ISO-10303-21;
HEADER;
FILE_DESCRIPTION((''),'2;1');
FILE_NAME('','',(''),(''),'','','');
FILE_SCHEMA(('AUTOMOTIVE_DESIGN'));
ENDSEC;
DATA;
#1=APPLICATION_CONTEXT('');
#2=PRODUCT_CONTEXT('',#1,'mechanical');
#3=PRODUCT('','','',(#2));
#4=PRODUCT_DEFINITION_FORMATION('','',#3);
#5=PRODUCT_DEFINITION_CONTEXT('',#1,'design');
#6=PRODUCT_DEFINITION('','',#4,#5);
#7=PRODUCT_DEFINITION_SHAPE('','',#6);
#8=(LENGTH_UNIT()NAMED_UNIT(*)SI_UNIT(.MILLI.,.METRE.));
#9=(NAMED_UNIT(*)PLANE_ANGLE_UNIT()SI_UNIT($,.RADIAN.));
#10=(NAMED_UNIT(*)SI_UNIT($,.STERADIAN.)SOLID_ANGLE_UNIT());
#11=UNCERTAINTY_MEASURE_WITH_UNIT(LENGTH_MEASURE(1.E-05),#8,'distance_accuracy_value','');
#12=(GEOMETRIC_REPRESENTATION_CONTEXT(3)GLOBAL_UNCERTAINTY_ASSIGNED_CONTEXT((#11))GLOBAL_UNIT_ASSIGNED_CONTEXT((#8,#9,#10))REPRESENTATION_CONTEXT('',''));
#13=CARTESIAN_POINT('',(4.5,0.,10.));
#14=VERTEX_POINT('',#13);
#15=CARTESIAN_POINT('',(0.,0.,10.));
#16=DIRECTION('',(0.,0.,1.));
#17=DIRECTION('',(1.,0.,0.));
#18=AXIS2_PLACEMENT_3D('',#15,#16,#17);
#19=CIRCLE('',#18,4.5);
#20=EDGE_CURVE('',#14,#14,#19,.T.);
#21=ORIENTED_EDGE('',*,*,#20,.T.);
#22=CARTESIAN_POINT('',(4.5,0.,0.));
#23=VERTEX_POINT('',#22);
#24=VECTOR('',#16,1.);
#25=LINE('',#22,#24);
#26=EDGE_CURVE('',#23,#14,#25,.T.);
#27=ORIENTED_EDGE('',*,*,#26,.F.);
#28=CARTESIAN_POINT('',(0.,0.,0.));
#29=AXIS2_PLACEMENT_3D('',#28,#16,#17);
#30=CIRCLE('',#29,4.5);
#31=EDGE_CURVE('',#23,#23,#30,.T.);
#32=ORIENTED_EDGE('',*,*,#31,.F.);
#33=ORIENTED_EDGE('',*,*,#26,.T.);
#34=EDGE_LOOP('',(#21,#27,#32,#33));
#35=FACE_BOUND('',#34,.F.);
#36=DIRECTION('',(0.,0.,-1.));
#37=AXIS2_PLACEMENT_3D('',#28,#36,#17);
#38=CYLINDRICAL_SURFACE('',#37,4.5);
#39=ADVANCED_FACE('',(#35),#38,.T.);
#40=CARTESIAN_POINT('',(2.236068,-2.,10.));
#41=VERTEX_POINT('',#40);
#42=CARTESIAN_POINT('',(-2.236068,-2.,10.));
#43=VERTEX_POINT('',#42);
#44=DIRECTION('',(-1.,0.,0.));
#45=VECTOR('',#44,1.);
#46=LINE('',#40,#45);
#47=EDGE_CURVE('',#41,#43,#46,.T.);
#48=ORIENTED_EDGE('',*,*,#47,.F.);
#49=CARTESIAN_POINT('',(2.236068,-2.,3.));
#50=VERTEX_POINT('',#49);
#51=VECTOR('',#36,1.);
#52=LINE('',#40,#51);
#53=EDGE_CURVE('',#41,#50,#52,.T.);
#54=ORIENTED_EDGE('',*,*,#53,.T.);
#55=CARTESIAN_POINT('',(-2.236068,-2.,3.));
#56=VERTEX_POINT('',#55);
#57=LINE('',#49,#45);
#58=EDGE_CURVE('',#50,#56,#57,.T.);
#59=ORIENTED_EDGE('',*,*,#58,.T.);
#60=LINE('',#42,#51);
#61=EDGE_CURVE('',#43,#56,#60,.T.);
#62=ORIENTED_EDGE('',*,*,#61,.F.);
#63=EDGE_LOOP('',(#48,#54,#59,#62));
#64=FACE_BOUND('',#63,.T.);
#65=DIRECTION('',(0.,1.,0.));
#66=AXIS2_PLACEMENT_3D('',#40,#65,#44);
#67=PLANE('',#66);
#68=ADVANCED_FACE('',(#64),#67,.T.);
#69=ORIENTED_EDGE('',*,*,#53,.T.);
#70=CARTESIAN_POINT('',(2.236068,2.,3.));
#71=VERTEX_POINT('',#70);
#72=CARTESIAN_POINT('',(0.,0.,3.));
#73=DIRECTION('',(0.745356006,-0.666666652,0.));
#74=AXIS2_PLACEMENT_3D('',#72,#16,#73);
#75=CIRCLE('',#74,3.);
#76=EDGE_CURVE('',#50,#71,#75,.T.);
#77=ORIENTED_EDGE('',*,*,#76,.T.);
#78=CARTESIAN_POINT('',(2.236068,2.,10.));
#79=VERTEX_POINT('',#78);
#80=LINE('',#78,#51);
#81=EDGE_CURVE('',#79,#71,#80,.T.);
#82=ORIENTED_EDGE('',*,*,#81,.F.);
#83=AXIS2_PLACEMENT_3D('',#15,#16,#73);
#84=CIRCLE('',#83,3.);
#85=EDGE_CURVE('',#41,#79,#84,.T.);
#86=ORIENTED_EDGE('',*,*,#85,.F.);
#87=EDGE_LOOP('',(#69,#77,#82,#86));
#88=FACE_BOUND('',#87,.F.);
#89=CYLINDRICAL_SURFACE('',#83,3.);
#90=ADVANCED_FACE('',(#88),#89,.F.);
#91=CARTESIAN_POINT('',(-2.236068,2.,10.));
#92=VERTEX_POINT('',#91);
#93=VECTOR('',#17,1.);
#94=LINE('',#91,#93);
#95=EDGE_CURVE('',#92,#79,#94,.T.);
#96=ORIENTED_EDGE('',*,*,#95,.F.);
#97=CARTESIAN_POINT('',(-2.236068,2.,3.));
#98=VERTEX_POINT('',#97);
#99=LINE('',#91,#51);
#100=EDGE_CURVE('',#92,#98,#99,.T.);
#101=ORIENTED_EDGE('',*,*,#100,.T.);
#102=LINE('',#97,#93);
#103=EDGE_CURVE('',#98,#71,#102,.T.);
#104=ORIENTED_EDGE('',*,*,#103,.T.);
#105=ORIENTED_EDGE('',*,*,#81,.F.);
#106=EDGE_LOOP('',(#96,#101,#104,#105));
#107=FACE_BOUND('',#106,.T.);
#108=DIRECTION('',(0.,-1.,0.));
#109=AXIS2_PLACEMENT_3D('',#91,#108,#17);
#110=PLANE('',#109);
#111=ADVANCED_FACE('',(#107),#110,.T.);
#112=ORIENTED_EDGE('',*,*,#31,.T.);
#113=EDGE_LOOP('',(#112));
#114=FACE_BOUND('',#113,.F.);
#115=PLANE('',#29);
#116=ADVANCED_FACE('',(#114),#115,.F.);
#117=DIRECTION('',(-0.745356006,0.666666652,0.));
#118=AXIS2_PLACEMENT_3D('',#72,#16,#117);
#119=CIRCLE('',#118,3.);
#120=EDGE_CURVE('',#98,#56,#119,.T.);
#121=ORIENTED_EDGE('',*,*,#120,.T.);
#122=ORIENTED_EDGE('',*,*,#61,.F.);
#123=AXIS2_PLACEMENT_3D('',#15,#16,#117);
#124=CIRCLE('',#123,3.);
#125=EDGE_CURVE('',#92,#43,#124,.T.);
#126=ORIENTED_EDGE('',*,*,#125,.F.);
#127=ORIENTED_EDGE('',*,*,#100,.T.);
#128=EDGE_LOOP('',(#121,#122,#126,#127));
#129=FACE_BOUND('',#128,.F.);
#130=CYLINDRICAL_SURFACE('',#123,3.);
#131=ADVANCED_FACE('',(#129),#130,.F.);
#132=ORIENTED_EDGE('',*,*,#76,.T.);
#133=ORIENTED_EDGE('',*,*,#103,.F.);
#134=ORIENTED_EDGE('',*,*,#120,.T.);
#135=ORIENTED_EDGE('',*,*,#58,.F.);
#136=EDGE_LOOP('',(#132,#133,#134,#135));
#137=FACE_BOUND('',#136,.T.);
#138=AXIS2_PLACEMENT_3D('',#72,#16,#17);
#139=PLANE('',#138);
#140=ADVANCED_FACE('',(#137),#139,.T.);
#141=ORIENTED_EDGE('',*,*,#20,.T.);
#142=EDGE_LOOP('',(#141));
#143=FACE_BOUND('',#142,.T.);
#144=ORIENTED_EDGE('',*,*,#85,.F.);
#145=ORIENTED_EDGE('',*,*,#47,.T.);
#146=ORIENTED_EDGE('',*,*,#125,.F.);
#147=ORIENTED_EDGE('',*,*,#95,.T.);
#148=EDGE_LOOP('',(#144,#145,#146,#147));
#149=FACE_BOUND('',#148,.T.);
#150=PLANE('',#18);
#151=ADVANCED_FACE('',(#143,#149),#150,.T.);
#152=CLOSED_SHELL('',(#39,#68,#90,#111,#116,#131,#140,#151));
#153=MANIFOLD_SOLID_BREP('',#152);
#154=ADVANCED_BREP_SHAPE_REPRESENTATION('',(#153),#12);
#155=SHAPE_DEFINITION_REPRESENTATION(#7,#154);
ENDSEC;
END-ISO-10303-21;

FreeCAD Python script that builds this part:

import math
import FreeCAD as App
import Part
import Sketcher
Q = App.Units.Quantity

doc = App.newDocument("Part")
body = doc.addObject("PartDesign::Body", "Body")

# Sketch on XY plane
sketch1 = doc.addObject("Sketcher::SketchObject", "Sketch")
body.addObject(sketch1)
sketch1.AttachmentSupport = (doc.XY_Plane, [""])
sketch1.MapMode = "FlatFace"
sketch1.AttachmentOffset = App.Placement(App.Vector(0, 0, 10), App.Rotation())
sketch1.addGeometry(Part.ArcOfCircle(Part.Circle(App.Vector(0, 0, 0), App.Vector(0, 0, 1), 3), math.radians(-42), math.radians(42)), False)
sketch1.addGeometry(Part.LineSegment(App.Vector(2.2, 2, 0), App.Vector(-2.2, 2, 0)), False)
sketch1.addGeometry(Part.ArcOfCircle(Part.Circle(App.Vector(0, 0, 0), App.Vector(0, 0, 1), 3), math.radians(138), math.radians(222)), False)
sketch1.addGeometry(Part.LineSegment(App.Vector(-2.2, -2, 0), App.Vector(2.2, -2, 0)), False)
sketch1.addConstraint(Sketcher.Constraint("Coincident", 0, 2, 1, 1))
sketch1.addConstraint(Sketcher.Constraint("Coincident", 1, 2, 2, 1))
sketch1.addConstraint(Sketcher.Constraint("Coincident", 2, 2, 3, 1))
sketch1.addConstraint(Sketcher.Constraint("Coincident", 3, 2, 0, 1))
sketch1.addConstraint(Sketcher.Constraint("Horizontal", 1))
sketch1.addConstraint(Sketcher.Constraint("Horizontal", 3))
sketch1.addConstraint(Sketcher.Constraint("Coincident", 0, 3, -1, 1))
sketch1.addConstraint(Sketcher.Constraint("Coincident", 2, 3, -1, 1))
sketch1.addConstraint(Sketcher.Constraint("Equal", 0, 2))
sketch1.addConstraint(Sketcher.Constraint("Vertical", 1, 2, 2, 2))
sketch1.addConstraint(Sketcher.Constraint("Radius", 0, Q("3 mm")))
sketch1.addConstraint(Sketcher.Constraint("DistanceY", -1, 1, 0, 2, Q("2 mm")))
pad1 = doc.addObject("PartDesign::Pad", "Pad")
body.addObject(pad1)
pad1.Profile = sketch1
pad1.Length = 7
pad1.Reversed = True
body2 = doc.addObject("PartDesign::Body", "Body001")

# Sketch on XY plane
sketch2 = doc.addObject("Sketcher::SketchObject", "Sketch001")
body2.addObject(sketch2)
sketch2.AttachmentSupport = (doc.getObject("XY_Plane001"), [""])
sketch2.MapMode = "FlatFace"
sketch2.addGeometry(Part.Circle(App.Vector(0, 0, 0), App.Vector(0, 0, 1), 4.5), False)
sketch2.addConstraint(Sketcher.Constraint("Coincident", 0, 3, -1, 1))
sketch2.addConstraint(Sketcher.Constraint("Diameter", 0, Q("9 mm")))
pad2 = doc.addObject("PartDesign::Pad", "Pad001")
body2.addObject(pad2)
pad2.Profile = sketch2
pad2.Length = 10
doc.recompute()

boolean = doc.addObject("PartDesign::Boolean", "Boolean")
body2.addObject(boolean)
boolean.Type = "Cut"
boolean.addObjects([body])

doc.recompute()
